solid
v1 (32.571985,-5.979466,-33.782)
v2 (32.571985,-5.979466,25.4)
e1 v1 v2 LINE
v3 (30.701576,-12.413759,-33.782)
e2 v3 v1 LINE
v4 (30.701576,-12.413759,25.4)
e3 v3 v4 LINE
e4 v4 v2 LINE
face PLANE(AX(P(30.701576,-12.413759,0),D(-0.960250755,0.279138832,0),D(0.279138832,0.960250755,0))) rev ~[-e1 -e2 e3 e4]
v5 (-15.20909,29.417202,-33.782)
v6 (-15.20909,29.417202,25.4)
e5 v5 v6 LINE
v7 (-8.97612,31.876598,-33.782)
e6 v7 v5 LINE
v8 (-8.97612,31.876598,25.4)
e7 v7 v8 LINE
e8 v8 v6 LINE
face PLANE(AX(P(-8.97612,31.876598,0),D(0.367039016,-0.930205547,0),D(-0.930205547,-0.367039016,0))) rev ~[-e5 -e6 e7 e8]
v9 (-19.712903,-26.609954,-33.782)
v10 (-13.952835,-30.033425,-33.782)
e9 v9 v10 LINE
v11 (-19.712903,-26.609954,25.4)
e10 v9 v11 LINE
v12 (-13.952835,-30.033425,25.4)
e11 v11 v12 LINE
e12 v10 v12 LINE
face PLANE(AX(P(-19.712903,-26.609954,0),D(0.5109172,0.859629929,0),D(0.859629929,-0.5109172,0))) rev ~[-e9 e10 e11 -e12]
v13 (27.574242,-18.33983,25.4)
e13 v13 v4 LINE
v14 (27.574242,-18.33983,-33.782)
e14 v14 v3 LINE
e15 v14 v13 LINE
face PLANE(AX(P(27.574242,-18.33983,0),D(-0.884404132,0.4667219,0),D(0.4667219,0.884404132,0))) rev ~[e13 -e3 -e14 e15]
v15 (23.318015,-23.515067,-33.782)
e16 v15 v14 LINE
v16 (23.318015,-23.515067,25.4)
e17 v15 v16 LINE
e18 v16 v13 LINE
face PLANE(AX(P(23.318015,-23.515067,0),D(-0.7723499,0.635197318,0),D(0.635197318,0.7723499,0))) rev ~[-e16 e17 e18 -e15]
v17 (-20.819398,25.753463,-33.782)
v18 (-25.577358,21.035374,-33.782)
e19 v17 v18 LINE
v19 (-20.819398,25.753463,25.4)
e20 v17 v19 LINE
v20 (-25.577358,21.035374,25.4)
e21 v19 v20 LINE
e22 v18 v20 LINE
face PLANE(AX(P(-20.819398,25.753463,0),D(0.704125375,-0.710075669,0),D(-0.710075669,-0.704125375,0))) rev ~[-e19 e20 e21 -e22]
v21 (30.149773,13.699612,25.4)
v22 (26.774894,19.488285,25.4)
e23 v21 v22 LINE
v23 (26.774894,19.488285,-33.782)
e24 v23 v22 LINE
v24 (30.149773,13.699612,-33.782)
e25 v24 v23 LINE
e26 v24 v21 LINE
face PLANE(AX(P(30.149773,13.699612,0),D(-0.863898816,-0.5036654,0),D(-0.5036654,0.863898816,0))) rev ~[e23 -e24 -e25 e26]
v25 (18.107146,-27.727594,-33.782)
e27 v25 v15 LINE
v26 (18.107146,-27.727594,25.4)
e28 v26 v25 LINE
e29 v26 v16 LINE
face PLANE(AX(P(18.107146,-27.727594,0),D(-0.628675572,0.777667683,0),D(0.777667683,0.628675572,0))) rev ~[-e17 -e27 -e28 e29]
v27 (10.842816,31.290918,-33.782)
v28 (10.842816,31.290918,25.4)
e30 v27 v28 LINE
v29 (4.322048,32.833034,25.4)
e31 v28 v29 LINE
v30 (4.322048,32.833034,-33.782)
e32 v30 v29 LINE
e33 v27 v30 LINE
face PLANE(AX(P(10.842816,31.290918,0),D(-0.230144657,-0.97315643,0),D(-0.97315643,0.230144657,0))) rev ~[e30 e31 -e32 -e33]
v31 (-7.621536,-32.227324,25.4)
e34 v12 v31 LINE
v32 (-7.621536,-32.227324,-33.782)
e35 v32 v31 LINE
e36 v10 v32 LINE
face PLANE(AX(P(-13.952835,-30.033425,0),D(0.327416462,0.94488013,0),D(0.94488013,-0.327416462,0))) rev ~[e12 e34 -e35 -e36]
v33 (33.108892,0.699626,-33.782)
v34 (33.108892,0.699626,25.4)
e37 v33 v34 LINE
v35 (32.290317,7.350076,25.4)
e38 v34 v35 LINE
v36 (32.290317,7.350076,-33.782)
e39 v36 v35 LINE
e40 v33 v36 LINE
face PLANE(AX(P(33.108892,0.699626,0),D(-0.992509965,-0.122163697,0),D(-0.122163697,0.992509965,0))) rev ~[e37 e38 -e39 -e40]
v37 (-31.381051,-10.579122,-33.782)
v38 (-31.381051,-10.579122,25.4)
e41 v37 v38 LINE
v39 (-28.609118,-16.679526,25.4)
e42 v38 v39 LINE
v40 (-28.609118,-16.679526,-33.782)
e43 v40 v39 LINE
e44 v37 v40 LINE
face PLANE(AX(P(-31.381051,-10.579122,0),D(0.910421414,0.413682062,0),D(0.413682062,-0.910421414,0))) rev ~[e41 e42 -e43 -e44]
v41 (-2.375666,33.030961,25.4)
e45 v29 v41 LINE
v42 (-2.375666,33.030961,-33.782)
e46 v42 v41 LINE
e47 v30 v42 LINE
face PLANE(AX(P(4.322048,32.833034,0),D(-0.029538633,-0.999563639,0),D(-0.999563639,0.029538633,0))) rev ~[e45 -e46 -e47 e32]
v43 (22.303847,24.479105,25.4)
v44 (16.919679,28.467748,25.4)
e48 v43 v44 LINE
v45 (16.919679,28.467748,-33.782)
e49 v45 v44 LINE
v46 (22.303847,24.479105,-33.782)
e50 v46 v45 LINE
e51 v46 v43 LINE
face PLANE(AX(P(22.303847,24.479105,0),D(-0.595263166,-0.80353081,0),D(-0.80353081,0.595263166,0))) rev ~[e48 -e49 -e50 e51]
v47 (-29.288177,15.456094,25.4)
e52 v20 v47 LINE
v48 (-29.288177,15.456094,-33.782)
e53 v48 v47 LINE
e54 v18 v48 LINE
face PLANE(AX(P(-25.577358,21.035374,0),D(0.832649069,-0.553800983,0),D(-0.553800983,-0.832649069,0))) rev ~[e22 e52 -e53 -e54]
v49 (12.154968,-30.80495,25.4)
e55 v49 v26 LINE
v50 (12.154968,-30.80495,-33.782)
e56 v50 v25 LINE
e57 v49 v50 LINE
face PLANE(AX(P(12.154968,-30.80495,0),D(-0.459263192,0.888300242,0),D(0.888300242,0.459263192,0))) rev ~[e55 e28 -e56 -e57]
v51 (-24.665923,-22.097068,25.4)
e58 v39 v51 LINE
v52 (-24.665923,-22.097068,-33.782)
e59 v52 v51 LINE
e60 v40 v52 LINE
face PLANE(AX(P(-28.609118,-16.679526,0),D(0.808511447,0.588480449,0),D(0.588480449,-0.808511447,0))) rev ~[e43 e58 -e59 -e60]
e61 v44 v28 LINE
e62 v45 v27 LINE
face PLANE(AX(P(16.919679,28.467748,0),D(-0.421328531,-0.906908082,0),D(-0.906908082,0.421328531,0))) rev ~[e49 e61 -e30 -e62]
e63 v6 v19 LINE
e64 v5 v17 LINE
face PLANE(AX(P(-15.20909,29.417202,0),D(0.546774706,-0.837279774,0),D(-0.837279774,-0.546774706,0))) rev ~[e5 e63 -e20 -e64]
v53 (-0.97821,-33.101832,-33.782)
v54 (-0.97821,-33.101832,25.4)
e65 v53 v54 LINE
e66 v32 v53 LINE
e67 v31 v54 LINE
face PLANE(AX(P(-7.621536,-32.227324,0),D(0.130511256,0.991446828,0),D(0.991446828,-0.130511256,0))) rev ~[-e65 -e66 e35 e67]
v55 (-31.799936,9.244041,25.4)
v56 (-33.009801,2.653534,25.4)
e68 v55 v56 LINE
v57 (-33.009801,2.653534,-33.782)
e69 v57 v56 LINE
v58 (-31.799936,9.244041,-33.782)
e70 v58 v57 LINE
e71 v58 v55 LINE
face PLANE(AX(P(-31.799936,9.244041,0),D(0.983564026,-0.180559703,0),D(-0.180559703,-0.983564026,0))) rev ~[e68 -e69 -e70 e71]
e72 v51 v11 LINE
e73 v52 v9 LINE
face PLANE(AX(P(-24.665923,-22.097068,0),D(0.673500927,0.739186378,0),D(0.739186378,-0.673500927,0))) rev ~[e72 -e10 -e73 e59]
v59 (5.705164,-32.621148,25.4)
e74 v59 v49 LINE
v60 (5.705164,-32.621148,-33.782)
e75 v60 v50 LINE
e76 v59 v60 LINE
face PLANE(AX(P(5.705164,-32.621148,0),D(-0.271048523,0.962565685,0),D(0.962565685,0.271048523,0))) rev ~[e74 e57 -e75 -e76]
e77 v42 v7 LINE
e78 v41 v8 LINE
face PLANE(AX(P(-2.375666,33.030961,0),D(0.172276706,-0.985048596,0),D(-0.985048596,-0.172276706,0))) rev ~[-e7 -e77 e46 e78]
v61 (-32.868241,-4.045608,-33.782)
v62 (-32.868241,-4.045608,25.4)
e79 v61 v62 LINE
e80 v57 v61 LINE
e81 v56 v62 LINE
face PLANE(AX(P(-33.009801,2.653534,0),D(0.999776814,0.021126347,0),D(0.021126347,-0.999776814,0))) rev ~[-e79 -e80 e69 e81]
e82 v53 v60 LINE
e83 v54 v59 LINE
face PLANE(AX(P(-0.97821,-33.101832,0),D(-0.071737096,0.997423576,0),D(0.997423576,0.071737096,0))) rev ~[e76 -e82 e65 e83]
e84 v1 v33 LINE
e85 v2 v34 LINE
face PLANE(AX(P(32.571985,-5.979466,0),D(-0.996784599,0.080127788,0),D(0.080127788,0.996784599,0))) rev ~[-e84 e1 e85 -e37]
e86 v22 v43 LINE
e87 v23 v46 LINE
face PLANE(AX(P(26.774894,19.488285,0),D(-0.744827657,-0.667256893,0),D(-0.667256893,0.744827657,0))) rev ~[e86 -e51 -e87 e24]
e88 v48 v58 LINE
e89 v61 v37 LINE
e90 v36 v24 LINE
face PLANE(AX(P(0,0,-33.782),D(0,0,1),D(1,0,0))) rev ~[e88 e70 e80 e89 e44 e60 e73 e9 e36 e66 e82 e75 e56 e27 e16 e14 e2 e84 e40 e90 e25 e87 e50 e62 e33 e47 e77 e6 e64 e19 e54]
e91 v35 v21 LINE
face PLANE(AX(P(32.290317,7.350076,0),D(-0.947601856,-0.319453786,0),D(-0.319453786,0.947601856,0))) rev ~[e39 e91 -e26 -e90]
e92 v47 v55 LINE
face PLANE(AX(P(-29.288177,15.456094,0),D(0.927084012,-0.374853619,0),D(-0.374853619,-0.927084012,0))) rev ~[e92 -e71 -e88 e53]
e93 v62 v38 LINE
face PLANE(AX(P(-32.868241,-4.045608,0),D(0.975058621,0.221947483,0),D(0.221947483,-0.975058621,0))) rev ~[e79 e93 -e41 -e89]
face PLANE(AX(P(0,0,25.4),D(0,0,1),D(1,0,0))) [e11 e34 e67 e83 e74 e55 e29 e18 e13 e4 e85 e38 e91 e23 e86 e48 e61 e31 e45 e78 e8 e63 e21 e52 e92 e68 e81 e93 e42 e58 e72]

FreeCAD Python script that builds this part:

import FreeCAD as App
import Part
import Sketcher
from FreeCAD import Vector
Q = App.Units.Quantity

doc = App.newDocument("Part")
body = doc.addObject("PartDesign::Body", "Body")

sketch1 = body.newObject("Sketcher::SketchObject", "Sketch")
sketch1.AttachmentSupport = (doc.getObject("XY_Plane"), [""])
sketch1.MapMode = "FlatFace"
sketch1.addGeometry([
    Part.LineSegment(Vector(18.107146, -27.727594, 0), Vector(23.318015, -23.515067, 0)),
    Part.LineSegment(Vector(23.318015, -23.515067, 0), Vector(27.574242, -18.33983, 0)),
    Part.LineSegment(Vector(27.574242, -18.33983, 0), Vector(30.701576, -12.413759, 0)),
    Part.LineSegment(Vector(30.701576, -12.413759, 0), Vector(32.571985, -5.979466, 0)),
    Part.LineSegment(Vector(32.571985, -5.979466, 0), Vector(33.108892, 0.699626, 0)),
    Part.LineSegment(Vector(33.108892, 0.699626, 0), Vector(32.290317, 7.350076, 0)),
    Part.LineSegment(Vector(32.290317, 7.350076, 0), Vector(30.149773, 13.699612, 0)),
    Part.LineSegment(Vector(30.149773, 13.699612, 0), Vector(26.774894, 19.488285, 0)),
    Part.LineSegment(Vector(26.774894, 19.488285, 0), Vector(22.303847, 24.479105, 0)),
    Part.LineSegment(Vector(22.303847, 24.479105, 0), Vector(16.919679, 28.467748, 0)),
    Part.LineSegment(Vector(16.919679, 28.467748, 0), Vector(10.842816, 31.290918, 0)),
    Part.LineSegment(Vector(10.842816, 31.290918, 0), Vector(4.322048, 32.833034, 0)),
    Part.LineSegment(Vector(4.322048, 32.833034, 0), Vector(-2.375666, 33.030961, 0)),
    Part.LineSegment(Vector(-2.375666, 33.030961, 0), Vector(-8.97612, 31.876598, 0)),
    Part.LineSegment(Vector(-8.97612, 31.876598, 0), Vector(-15.20909, 29.417202, 0)),
    Part.LineSegment(Vector(-15.20909, 29.417202, 0), Vector(-20.819398, 25.753463, 0)),
    Part.LineSegment(Vector(-20.819398, 25.753463, 0), Vector(-25.577358, 21.035374, 0)),
    Part.LineSegment(Vector(-25.577358, 21.035374, 0), Vector(-29.288177, 15.456094, 0)),
    Part.LineSegment(Vector(-29.288177, 15.456094, 0), Vector(-31.799936, 9.244041, 0)),
    Part.LineSegment(Vector(-31.799936, 9.244041, 0), Vector(-33.009801, 2.653534, 0)),
    Part.LineSegment(Vector(-33.009801, 2.653534, 0), Vector(-32.868241, -4.045608, 0)),
    Part.LineSegment(Vector(-32.868241, -4.045608, 0), Vector(-31.381051, -10.579122, 0)),
    Part.LineSegment(Vector(-31.381051, -10.579122, 0), Vector(-28.609118, -16.679526, 0)),
    Part.LineSegment(Vector(-28.609118, -16.679526, 0), Vector(-24.665923, -22.097068, 0)),
    Part.LineSegment(Vector(-24.665923, -22.097068, 0), Vector(-19.712903, -26.609954, 0)),
    Part.LineSegment(Vector(-19.712903, -26.609954, 0), Vector(-13.952835, -30.033425, 0)),
    Part.LineSegment(Vector(-13.952835, -30.033425, 0), Vector(-7.621536, -32.227324, 0)),
    Part.LineSegment(Vector(-7.621536, -32.227324, 0), Vector(-0.97821, -33.101832, 0)),
    Part.LineSegment(Vector(-0.97821, -33.101832, 0), Vector(5.705164, -32.621148, 0)),
    Part.LineSegment(Vector(5.705164, -32.621148, 0), Vector(12.154968, -30.80495, 0)),
    Part.LineSegment(Vector(12.154968, -30.80495, 0), Vector(18.107146, -27.727594, 0)),
], False)
sketch1.addConstraint([
    Sketcher.Constraint("Coincident", 0, 2, 1, 1),
    Sketcher.Constraint("Coincident", 1, 2, 2, 1),
    Sketcher.Constraint("Coincident", 2, 2, 3, 1),
    Sketcher.Constraint("Coincident", 3, 2, 4, 1),
    Sketcher.Constraint("Coincident", 4, 2, 5, 1),
    Sketcher.Constraint("Coincident", 5, 2, 6, 1),
    Sketcher.Constraint("Coincident", 6, 2, 7, 1),
    Sketcher.Constraint("Coincident", 7, 2, 8, 1),
    Sketcher.Constraint("Coincident", 8, 2, 9, 1),
    Sketcher.Constraint("Coincident", 9, 2, 10, 1),
    Sketcher.Constraint("Coincident", 10, 2, 11, 1),
    Sketcher.Constraint("Coincident", 11, 2, 12, 1),
    Sketcher.Constraint("Coincident", 12, 2, 13, 1),
    Sketcher.Constraint("Coincident", 13, 2, 14, 1),
    Sketcher.Constraint("Coincident", 14, 2, 15, 1),
    Sketcher.Constraint("Coincident", 15, 2, 16, 1),
    Sketcher.Constraint("Coincident", 16, 2, 17, 1),
    Sketcher.Constraint("Coincident", 17, 2, 18, 1),
    Sketcher.Constraint("Coincident", 18, 2, 19, 1),
    Sketcher.Constraint("Coincident", 19, 2, 20, 1),
    Sketcher.Constraint("Coincident", 20, 2, 21, 1),
    Sketcher.Constraint("Coincident", 21, 2, 22, 1),
    Sketcher.Constraint("Coincident", 22, 2, 23, 1),
    Sketcher.Constraint("Coincident", 23, 2, 24, 1),
    Sketcher.Constraint("Coincident", 24, 2, 25, 1),
    Sketcher.Constraint("Coincident", 25, 2, 26, 1),
    Sketcher.Constraint("Coincident", 26, 2, 27, 1),
    Sketcher.Constraint("Coincident", 27, 2, 28, 1),
    Sketcher.Constraint("Coincident", 28, 2, 29, 1),
    Sketcher.Constraint("Coincident", 29, 2, 30, 1),
    Sketcher.Constraint("Coincident", 30, 2, 0, 1),
    Sketcher.Constraint("DistanceX", -1, 1, 1, 2, Q("1.0856001 in")),
    Sketcher.Constraint("DistanceY", 4, 2, 8, 2, Q("0.9362 in")),
    Sketcher.Constraint("DistanceX", 19, 2, 24, 2, Q("0.5234999 in")),
    Sketcher.Constraint("DistanceX", 15, 2, -1, 1, 20.819398),
    Sketcher.Constraint("DistanceX", 19, 2, -1, 1, 33.009801),
    Sketcher.Constraint("DistanceY", 0, 2, 3, 2, 17.535601),
    Sketcher.Constraint("DistanceX", 10, 2, 5, 2, 21.447501),
    Sketcher.Constraint("DistanceX", 11, 2, 8, 2, 17.9818),
    Sketcher.Constraint("DistanceX", 13, 2, 9, 2, 25.895798),
    Sketcher.Constraint("DistanceY", 15, 2, 12, 2, 7.277498),
    Sketcher.Constraint("DistanceY", 25, 2, 22, 2, 13.353899),
    Sketcher.Constraint("DistanceX", 25, 2, 26, 2, 6.331299),
    Sketcher.Constraint("DistanceY", 26, 2, 25, 2, 2.193899),
    Sketcher.Constraint("DistanceY", 26, 2, 21, 2, 21.648202),
    Sketcher.Constraint("DistanceX", 26, 2, 28, 2, 13.3267),
    Sketcher.Constraint("DistanceY", 1, 2, -1, 1, 18.33983),
    Sketcher.Constraint("DistanceY", 2, 2, -1, 1, 12.413759),
    Sketcher.Constraint("DistanceX", -1, 1, 4, 2, 33.108892),
    Sketcher.Constraint("DistanceX", -1, 1, 9, 2, 16.919679),
    Sketcher.Constraint("DistanceY", -1, 1, 12, 2, 33.030961),
    Sketcher.Constraint("DistanceX", 14, 2, -1, 1, 15.20909),
    Sketcher.Constraint("DistanceY", -1, 1, 18, 2, 9.244041),
    Sketcher.Constraint("DistanceX", 20, 2, -1, 1, 32.868241),
    Sketcher.Constraint("DistanceX", 21, 2, -1, 1, 31.381051),
    Sketcher.Constraint("DistanceY", 21, 2, -1, 1, 10.579122),
    Sketcher.Constraint("DistanceY", 23, 2, -1, 1, 22.097068),
    Sketcher.Constraint("DistanceX", 27, 2, -1, 1, 0.97821),
    Sketcher.Constraint("DistanceY", 28, 2, -1, 1, 32.621148),
    Sketcher.Constraint("DistanceY", 29, 2, -1, 1, 30.80495),
    Sketcher.Constraint("DistanceX", 0, 2, 2, 2, 7.383561),
    Sketcher.Constraint("DistanceY", 0, 2, 2, 2, 11.101308),
    Sketcher.Constraint("DistanceX", 2, 2, 3, 2, 1.870408),
    Sketcher.Constraint("DistanceY", 4, 2, 5, 2, 6.65045),
    Sketcher.Constraint("DistanceY", 3, 2, 5, 2, 13.329542),
    Sketcher.Constraint("DistanceX", 2, 2, 5, 2, 1.588741),
    Sketcher.Constraint("DistanceX", 6, 2, 4, 2, 2.959119),
    Sketcher.Constraint("DistanceX", 6, 2, 3, 2, 2.422211),
    Sketcher.Constraint("DistanceY", 3, 2, 6, 2, 19.679078),
    Sketcher.Constraint("DistanceX", 7, 2, 6, 2, 3.374879),
    Sketcher.Constraint("DistanceY", 5, 2, 7, 2, 12.138209),
    Sketcher.Constraint("DistanceX", 8, 2, 5, 2, 9.98647),
    Sketcher.Constraint("DistanceY", 4, 2, 9, 2, 27.768122),
    Sketcher.Constraint("DistanceY", 9, 2, 10, 2, 2.82317),
    Sketcher.Constraint("DistanceY", 8, 2, 11, 2, 8.353928),
    Sketcher.Constraint("DistanceX", 12, 2, 7, 2, 29.15056),
    Sketcher.Constraint("DistanceY", 10, 2, 13, 2, 0.58568),
    Sketcher.Constraint("DistanceY", 14, 2, 12, 2, 3.613759),
    Sketcher.Constraint("DistanceX", 16, 2, 15, 2, 4.75796),
    Sketcher.Constraint("DistanceY", 16, 2, 15, 2, 4.718089),
    Sketcher.Constraint("DistanceX", 17, 2, 16, 2, 3.71082),
    Sketcher.Constraint("DistanceY", 17, 2, 16, 2, 5.57928),
    Sketcher.Constraint("DistanceX", 18, 2, 17, 2, 2.511758),
    Sketcher.Constraint("DistanceY", 19, 2, 17, 2, 12.80256),
    Sketcher.Constraint("DistanceY", 20, 2, 18, 2, 13.289648),
    Sketcher.Constraint("DistanceX", 18, 2, 22, 2, 3.190818),
    Sketcher.Constraint("DistanceX", 23, 2, 24, 2, 4.95302),
    Sketcher.Constraint("DistanceY", 24, 2, 21, 2, 16.030832),
    Sketcher.Constraint("DistanceX", 24, 2, 25, 2, 5.760069),
    Sketcher.Constraint("DistanceY", 27, 2, 26, 2, 0.874509),
    Sketcher.Constraint("DistanceX", 30, 2, 0, 2, 5.210869),
    Sketcher.Constraint("DistanceY", 27, 2, 30, 2, 5.374238),
    Sketcher.Constraint("Distance", 29, 6.700638),
])
pad1 = body.newObject("PartDesign::Pad", "Pad")
pad1.Profile = sketch1
pad1.Type = "TwoLengths"
pad1.Length = Q("1.33 in")
pad1.Length2 = Q("1 in")
pad1.Reversed = True

doc.recompute()
